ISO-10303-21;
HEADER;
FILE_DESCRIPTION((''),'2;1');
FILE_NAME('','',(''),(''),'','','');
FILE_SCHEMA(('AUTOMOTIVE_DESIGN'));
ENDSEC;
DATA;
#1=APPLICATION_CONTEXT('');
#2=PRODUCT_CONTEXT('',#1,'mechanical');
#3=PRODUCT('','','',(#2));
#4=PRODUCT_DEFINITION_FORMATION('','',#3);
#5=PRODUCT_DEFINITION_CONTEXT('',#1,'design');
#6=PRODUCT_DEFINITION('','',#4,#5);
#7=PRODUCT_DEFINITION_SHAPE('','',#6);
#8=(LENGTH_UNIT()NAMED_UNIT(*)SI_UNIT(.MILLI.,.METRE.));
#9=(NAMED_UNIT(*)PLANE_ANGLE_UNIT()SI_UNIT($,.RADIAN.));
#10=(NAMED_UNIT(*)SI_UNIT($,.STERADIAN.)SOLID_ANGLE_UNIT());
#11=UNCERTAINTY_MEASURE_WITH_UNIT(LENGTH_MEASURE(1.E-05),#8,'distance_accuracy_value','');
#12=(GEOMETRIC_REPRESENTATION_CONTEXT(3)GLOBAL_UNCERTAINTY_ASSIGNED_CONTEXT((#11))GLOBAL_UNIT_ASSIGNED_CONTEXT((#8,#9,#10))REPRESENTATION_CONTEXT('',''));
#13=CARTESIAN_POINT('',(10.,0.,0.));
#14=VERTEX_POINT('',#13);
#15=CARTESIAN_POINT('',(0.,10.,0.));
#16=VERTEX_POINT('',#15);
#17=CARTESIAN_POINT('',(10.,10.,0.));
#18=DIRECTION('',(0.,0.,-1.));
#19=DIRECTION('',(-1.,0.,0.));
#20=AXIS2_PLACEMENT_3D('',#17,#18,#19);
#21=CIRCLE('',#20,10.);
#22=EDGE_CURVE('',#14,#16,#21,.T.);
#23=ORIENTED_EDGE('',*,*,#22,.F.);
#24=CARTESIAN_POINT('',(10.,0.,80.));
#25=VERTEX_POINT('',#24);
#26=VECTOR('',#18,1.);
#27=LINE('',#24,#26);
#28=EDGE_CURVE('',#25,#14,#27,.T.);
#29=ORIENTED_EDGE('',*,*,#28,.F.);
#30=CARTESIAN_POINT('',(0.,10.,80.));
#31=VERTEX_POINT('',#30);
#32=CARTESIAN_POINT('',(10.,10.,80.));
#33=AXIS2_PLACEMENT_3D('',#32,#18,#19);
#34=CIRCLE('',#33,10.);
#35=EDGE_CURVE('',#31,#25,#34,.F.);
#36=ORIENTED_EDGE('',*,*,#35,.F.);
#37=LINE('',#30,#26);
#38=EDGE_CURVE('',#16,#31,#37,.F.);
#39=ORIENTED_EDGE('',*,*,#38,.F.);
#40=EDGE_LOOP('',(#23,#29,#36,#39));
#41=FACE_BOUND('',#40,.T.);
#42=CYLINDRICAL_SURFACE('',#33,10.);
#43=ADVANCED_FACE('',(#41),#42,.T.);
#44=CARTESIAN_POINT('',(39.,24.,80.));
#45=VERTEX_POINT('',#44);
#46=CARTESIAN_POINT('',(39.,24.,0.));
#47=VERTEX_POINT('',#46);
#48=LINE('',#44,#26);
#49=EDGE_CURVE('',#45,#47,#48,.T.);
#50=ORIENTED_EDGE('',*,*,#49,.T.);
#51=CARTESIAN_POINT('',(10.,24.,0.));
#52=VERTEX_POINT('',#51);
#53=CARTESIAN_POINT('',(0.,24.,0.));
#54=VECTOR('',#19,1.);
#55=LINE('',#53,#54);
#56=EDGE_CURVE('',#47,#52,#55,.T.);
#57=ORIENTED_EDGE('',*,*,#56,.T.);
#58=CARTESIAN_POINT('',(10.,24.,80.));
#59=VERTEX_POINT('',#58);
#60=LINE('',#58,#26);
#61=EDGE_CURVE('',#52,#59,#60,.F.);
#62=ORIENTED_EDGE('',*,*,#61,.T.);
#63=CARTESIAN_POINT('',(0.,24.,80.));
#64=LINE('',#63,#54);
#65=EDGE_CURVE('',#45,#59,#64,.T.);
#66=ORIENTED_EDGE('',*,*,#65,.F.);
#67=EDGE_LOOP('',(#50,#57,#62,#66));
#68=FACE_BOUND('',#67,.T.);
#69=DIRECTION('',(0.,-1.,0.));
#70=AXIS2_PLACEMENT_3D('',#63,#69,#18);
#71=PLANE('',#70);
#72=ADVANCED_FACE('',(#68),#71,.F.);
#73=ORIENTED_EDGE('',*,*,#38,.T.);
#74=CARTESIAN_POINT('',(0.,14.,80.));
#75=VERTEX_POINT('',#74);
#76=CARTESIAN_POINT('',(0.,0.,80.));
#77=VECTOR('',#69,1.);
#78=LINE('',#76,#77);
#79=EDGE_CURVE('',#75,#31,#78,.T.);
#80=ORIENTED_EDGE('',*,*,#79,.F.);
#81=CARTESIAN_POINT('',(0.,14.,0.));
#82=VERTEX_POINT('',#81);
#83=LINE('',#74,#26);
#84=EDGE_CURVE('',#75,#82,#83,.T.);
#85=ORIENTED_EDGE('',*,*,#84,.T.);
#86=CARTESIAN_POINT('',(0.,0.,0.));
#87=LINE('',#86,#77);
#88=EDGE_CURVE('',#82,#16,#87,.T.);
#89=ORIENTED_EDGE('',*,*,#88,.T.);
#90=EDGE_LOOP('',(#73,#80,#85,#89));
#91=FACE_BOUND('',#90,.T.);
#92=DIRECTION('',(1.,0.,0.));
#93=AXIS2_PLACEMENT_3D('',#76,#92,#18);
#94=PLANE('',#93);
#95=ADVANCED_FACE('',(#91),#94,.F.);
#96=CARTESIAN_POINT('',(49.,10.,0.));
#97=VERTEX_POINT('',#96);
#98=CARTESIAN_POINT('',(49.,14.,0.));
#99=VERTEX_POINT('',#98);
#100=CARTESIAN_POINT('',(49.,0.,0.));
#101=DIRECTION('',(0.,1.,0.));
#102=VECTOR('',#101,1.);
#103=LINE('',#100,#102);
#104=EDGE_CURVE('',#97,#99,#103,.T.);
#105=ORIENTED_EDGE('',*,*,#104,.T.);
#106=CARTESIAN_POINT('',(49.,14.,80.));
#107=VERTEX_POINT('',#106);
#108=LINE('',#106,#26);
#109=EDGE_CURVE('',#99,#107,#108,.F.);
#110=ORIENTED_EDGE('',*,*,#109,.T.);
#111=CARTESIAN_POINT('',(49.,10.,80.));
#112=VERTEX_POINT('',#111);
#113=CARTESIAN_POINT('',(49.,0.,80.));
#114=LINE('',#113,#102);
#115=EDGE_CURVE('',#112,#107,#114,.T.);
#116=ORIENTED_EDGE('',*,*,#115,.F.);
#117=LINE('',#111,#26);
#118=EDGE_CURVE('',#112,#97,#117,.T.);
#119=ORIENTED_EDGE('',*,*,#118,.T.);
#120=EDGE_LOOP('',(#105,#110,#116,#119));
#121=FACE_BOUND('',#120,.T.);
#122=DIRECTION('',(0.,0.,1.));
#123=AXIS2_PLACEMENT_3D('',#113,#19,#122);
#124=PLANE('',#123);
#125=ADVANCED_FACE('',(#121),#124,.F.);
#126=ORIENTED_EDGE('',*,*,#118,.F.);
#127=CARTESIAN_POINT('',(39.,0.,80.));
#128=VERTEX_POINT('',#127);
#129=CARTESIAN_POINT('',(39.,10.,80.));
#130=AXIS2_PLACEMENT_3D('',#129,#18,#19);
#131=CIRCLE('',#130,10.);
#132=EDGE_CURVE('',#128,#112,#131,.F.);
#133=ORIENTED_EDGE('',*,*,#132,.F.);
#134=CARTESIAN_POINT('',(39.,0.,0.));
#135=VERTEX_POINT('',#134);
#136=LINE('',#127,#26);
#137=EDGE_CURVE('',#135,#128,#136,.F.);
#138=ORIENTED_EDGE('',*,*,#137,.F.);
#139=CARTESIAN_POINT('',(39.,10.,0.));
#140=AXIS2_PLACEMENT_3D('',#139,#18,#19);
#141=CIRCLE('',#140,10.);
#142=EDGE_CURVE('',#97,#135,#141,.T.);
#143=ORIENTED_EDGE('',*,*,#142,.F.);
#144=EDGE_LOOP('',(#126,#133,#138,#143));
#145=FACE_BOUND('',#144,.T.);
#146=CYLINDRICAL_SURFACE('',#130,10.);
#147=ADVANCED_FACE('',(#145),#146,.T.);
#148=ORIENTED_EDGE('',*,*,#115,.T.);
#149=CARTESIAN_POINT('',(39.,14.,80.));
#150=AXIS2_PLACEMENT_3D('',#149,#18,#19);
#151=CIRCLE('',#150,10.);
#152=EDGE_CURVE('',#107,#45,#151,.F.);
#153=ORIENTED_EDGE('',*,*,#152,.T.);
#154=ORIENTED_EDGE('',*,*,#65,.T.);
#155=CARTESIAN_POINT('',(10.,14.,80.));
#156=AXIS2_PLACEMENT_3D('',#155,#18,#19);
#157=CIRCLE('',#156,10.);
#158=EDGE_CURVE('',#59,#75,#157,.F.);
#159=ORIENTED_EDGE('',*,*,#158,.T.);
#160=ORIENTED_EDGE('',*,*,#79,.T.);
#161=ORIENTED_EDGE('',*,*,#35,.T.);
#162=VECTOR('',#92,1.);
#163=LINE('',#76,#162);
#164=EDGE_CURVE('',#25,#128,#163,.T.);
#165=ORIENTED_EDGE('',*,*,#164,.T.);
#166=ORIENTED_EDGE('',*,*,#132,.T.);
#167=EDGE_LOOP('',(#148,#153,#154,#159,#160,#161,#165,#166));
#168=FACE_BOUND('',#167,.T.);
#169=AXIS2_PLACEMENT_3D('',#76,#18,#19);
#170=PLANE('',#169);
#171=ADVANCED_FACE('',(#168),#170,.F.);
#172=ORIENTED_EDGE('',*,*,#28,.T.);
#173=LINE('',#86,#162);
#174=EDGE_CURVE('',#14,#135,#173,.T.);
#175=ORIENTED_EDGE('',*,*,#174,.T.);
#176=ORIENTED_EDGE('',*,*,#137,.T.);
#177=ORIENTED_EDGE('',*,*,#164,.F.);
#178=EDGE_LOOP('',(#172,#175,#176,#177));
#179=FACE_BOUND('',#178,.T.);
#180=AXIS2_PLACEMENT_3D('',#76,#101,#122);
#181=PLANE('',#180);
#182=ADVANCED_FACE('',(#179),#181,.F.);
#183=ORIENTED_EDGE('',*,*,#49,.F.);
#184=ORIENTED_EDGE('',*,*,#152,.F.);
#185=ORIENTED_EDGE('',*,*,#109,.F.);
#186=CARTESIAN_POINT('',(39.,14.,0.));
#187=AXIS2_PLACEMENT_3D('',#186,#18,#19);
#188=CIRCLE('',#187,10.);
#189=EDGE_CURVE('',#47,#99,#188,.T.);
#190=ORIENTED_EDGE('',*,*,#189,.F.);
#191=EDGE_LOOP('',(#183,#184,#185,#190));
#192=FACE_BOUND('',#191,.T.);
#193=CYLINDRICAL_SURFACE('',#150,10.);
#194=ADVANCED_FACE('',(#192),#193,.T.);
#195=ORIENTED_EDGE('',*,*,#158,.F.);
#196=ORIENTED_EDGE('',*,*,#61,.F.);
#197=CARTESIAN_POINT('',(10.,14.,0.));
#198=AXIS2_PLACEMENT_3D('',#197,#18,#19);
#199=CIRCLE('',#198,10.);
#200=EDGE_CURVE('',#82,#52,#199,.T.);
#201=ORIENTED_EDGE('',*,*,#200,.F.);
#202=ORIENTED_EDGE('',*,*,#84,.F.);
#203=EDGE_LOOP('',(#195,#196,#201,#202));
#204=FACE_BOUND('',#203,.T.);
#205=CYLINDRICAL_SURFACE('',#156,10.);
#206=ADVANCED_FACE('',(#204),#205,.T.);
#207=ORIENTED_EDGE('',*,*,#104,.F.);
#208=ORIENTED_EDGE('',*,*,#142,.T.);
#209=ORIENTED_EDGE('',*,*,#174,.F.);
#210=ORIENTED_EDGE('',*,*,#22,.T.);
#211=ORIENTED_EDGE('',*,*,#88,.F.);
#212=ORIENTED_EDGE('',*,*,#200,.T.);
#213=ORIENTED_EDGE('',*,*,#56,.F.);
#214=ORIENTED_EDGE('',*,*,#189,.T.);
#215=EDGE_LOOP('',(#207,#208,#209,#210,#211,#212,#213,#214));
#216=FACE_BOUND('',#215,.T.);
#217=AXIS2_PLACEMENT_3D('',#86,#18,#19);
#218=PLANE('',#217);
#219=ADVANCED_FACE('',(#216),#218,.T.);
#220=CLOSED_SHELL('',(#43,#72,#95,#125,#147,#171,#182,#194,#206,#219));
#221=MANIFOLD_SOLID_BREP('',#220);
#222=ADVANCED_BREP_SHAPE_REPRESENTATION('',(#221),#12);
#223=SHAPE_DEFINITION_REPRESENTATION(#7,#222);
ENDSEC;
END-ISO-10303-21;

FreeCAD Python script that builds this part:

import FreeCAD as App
import Part
import Sketcher

V = App.Vector
Q = App.Units.Quantity


def edges_at(feature, points):
    """Names of the edges that pass closest to the given points."""
    edges = feature.Shape.Edges
    near = lambda p: min(range(len(edges)), key=lambda i: edges[i].distToShape(Part.Vertex(*p))[0])
    return sorted({f"Edge{near(p) + 1}" for p in points})

doc = App.newDocument("Part")
params = doc.addObject("Spreadsheet::Sheet", "Params")
for row, (alias, value) in enumerate([
    ("sketch1_width", "49 mm"),
    ("sketch1_height", "24 mm"),
    ("pad1_length", "80 mm"),
    ("fillet_radius", "10 mm"),
], start=1):
    params.set(f"A{row}", alias)
    params.set(f"B{row}", "=" + value)
    params.setAlias(f"B{row}", alias)

body = doc.addObject("PartDesign::Body", "Body")

# Sketch on XY plane
sketch1 = body.newObject("Sketcher::SketchObject", "Sketch")
sketch1.AttachmentSupport = (doc.getObject("XY_Plane"), [""])
sketch1.MapMode = "FlatFace"
sketch1.addGeometry([
    Part.LineSegment(V(0, 24, 0), V(0, 0, 0)),
    Part.LineSegment(V(0, 0, 0), V(49, 0, 0)),
    Part.LineSegment(V(49, 0, 0), V(49, 24, 0)),
    Part.LineSegment(V(49, 24, 0), V(0, 24, 0)),
], False)
sketch1.addConstraint([
    Sketcher.Constraint("Coincident", 0, 2, 1, 1),
    Sketcher.Constraint("Coincident", 1, 2, 2, 1),
    Sketcher.Constraint("Coincident", 2, 2, 3, 1),
    Sketcher.Constraint("Coincident", 3, 2, 0, 1),
    Sketcher.Constraint("Vertical", 0),
    Sketcher.Constraint("Horizontal", 1),
    Sketcher.Constraint("Vertical", 2),
    Sketcher.Constraint("Horizontal", 3),
    Sketcher.Constraint("Coincident", 0, 2, -1, 1),
    Sketcher.Constraint("DistanceX", 1, 1, 1, 2, Q("49 mm")),
    Sketcher.Constraint("DistanceY", 0, 2, 0, 1, Q("24 mm")),
])
sketch1.setExpression("Constraints[9]", "Params.sketch1_width")
sketch1.setExpression("Constraints[10]", "Params.sketch1_height")
pad1 = body.newObject("PartDesign::Pad", "Pad")
pad1.Profile = sketch1
pad1.setExpression("Length", "Params.pad1_length")
doc.recompute()

fillet = body.newObject("PartDesign::Fillet", "Fillet")
fillet.Base = (pad1, edges_at(pad1, [
    (0, 24, 40),
    (49, 24, 40),
    (49, 0, 40),
    (0, 0, 40),
]))
fillet.setExpression("Radius", "Params.fillet_radius")

doc.recompute()
